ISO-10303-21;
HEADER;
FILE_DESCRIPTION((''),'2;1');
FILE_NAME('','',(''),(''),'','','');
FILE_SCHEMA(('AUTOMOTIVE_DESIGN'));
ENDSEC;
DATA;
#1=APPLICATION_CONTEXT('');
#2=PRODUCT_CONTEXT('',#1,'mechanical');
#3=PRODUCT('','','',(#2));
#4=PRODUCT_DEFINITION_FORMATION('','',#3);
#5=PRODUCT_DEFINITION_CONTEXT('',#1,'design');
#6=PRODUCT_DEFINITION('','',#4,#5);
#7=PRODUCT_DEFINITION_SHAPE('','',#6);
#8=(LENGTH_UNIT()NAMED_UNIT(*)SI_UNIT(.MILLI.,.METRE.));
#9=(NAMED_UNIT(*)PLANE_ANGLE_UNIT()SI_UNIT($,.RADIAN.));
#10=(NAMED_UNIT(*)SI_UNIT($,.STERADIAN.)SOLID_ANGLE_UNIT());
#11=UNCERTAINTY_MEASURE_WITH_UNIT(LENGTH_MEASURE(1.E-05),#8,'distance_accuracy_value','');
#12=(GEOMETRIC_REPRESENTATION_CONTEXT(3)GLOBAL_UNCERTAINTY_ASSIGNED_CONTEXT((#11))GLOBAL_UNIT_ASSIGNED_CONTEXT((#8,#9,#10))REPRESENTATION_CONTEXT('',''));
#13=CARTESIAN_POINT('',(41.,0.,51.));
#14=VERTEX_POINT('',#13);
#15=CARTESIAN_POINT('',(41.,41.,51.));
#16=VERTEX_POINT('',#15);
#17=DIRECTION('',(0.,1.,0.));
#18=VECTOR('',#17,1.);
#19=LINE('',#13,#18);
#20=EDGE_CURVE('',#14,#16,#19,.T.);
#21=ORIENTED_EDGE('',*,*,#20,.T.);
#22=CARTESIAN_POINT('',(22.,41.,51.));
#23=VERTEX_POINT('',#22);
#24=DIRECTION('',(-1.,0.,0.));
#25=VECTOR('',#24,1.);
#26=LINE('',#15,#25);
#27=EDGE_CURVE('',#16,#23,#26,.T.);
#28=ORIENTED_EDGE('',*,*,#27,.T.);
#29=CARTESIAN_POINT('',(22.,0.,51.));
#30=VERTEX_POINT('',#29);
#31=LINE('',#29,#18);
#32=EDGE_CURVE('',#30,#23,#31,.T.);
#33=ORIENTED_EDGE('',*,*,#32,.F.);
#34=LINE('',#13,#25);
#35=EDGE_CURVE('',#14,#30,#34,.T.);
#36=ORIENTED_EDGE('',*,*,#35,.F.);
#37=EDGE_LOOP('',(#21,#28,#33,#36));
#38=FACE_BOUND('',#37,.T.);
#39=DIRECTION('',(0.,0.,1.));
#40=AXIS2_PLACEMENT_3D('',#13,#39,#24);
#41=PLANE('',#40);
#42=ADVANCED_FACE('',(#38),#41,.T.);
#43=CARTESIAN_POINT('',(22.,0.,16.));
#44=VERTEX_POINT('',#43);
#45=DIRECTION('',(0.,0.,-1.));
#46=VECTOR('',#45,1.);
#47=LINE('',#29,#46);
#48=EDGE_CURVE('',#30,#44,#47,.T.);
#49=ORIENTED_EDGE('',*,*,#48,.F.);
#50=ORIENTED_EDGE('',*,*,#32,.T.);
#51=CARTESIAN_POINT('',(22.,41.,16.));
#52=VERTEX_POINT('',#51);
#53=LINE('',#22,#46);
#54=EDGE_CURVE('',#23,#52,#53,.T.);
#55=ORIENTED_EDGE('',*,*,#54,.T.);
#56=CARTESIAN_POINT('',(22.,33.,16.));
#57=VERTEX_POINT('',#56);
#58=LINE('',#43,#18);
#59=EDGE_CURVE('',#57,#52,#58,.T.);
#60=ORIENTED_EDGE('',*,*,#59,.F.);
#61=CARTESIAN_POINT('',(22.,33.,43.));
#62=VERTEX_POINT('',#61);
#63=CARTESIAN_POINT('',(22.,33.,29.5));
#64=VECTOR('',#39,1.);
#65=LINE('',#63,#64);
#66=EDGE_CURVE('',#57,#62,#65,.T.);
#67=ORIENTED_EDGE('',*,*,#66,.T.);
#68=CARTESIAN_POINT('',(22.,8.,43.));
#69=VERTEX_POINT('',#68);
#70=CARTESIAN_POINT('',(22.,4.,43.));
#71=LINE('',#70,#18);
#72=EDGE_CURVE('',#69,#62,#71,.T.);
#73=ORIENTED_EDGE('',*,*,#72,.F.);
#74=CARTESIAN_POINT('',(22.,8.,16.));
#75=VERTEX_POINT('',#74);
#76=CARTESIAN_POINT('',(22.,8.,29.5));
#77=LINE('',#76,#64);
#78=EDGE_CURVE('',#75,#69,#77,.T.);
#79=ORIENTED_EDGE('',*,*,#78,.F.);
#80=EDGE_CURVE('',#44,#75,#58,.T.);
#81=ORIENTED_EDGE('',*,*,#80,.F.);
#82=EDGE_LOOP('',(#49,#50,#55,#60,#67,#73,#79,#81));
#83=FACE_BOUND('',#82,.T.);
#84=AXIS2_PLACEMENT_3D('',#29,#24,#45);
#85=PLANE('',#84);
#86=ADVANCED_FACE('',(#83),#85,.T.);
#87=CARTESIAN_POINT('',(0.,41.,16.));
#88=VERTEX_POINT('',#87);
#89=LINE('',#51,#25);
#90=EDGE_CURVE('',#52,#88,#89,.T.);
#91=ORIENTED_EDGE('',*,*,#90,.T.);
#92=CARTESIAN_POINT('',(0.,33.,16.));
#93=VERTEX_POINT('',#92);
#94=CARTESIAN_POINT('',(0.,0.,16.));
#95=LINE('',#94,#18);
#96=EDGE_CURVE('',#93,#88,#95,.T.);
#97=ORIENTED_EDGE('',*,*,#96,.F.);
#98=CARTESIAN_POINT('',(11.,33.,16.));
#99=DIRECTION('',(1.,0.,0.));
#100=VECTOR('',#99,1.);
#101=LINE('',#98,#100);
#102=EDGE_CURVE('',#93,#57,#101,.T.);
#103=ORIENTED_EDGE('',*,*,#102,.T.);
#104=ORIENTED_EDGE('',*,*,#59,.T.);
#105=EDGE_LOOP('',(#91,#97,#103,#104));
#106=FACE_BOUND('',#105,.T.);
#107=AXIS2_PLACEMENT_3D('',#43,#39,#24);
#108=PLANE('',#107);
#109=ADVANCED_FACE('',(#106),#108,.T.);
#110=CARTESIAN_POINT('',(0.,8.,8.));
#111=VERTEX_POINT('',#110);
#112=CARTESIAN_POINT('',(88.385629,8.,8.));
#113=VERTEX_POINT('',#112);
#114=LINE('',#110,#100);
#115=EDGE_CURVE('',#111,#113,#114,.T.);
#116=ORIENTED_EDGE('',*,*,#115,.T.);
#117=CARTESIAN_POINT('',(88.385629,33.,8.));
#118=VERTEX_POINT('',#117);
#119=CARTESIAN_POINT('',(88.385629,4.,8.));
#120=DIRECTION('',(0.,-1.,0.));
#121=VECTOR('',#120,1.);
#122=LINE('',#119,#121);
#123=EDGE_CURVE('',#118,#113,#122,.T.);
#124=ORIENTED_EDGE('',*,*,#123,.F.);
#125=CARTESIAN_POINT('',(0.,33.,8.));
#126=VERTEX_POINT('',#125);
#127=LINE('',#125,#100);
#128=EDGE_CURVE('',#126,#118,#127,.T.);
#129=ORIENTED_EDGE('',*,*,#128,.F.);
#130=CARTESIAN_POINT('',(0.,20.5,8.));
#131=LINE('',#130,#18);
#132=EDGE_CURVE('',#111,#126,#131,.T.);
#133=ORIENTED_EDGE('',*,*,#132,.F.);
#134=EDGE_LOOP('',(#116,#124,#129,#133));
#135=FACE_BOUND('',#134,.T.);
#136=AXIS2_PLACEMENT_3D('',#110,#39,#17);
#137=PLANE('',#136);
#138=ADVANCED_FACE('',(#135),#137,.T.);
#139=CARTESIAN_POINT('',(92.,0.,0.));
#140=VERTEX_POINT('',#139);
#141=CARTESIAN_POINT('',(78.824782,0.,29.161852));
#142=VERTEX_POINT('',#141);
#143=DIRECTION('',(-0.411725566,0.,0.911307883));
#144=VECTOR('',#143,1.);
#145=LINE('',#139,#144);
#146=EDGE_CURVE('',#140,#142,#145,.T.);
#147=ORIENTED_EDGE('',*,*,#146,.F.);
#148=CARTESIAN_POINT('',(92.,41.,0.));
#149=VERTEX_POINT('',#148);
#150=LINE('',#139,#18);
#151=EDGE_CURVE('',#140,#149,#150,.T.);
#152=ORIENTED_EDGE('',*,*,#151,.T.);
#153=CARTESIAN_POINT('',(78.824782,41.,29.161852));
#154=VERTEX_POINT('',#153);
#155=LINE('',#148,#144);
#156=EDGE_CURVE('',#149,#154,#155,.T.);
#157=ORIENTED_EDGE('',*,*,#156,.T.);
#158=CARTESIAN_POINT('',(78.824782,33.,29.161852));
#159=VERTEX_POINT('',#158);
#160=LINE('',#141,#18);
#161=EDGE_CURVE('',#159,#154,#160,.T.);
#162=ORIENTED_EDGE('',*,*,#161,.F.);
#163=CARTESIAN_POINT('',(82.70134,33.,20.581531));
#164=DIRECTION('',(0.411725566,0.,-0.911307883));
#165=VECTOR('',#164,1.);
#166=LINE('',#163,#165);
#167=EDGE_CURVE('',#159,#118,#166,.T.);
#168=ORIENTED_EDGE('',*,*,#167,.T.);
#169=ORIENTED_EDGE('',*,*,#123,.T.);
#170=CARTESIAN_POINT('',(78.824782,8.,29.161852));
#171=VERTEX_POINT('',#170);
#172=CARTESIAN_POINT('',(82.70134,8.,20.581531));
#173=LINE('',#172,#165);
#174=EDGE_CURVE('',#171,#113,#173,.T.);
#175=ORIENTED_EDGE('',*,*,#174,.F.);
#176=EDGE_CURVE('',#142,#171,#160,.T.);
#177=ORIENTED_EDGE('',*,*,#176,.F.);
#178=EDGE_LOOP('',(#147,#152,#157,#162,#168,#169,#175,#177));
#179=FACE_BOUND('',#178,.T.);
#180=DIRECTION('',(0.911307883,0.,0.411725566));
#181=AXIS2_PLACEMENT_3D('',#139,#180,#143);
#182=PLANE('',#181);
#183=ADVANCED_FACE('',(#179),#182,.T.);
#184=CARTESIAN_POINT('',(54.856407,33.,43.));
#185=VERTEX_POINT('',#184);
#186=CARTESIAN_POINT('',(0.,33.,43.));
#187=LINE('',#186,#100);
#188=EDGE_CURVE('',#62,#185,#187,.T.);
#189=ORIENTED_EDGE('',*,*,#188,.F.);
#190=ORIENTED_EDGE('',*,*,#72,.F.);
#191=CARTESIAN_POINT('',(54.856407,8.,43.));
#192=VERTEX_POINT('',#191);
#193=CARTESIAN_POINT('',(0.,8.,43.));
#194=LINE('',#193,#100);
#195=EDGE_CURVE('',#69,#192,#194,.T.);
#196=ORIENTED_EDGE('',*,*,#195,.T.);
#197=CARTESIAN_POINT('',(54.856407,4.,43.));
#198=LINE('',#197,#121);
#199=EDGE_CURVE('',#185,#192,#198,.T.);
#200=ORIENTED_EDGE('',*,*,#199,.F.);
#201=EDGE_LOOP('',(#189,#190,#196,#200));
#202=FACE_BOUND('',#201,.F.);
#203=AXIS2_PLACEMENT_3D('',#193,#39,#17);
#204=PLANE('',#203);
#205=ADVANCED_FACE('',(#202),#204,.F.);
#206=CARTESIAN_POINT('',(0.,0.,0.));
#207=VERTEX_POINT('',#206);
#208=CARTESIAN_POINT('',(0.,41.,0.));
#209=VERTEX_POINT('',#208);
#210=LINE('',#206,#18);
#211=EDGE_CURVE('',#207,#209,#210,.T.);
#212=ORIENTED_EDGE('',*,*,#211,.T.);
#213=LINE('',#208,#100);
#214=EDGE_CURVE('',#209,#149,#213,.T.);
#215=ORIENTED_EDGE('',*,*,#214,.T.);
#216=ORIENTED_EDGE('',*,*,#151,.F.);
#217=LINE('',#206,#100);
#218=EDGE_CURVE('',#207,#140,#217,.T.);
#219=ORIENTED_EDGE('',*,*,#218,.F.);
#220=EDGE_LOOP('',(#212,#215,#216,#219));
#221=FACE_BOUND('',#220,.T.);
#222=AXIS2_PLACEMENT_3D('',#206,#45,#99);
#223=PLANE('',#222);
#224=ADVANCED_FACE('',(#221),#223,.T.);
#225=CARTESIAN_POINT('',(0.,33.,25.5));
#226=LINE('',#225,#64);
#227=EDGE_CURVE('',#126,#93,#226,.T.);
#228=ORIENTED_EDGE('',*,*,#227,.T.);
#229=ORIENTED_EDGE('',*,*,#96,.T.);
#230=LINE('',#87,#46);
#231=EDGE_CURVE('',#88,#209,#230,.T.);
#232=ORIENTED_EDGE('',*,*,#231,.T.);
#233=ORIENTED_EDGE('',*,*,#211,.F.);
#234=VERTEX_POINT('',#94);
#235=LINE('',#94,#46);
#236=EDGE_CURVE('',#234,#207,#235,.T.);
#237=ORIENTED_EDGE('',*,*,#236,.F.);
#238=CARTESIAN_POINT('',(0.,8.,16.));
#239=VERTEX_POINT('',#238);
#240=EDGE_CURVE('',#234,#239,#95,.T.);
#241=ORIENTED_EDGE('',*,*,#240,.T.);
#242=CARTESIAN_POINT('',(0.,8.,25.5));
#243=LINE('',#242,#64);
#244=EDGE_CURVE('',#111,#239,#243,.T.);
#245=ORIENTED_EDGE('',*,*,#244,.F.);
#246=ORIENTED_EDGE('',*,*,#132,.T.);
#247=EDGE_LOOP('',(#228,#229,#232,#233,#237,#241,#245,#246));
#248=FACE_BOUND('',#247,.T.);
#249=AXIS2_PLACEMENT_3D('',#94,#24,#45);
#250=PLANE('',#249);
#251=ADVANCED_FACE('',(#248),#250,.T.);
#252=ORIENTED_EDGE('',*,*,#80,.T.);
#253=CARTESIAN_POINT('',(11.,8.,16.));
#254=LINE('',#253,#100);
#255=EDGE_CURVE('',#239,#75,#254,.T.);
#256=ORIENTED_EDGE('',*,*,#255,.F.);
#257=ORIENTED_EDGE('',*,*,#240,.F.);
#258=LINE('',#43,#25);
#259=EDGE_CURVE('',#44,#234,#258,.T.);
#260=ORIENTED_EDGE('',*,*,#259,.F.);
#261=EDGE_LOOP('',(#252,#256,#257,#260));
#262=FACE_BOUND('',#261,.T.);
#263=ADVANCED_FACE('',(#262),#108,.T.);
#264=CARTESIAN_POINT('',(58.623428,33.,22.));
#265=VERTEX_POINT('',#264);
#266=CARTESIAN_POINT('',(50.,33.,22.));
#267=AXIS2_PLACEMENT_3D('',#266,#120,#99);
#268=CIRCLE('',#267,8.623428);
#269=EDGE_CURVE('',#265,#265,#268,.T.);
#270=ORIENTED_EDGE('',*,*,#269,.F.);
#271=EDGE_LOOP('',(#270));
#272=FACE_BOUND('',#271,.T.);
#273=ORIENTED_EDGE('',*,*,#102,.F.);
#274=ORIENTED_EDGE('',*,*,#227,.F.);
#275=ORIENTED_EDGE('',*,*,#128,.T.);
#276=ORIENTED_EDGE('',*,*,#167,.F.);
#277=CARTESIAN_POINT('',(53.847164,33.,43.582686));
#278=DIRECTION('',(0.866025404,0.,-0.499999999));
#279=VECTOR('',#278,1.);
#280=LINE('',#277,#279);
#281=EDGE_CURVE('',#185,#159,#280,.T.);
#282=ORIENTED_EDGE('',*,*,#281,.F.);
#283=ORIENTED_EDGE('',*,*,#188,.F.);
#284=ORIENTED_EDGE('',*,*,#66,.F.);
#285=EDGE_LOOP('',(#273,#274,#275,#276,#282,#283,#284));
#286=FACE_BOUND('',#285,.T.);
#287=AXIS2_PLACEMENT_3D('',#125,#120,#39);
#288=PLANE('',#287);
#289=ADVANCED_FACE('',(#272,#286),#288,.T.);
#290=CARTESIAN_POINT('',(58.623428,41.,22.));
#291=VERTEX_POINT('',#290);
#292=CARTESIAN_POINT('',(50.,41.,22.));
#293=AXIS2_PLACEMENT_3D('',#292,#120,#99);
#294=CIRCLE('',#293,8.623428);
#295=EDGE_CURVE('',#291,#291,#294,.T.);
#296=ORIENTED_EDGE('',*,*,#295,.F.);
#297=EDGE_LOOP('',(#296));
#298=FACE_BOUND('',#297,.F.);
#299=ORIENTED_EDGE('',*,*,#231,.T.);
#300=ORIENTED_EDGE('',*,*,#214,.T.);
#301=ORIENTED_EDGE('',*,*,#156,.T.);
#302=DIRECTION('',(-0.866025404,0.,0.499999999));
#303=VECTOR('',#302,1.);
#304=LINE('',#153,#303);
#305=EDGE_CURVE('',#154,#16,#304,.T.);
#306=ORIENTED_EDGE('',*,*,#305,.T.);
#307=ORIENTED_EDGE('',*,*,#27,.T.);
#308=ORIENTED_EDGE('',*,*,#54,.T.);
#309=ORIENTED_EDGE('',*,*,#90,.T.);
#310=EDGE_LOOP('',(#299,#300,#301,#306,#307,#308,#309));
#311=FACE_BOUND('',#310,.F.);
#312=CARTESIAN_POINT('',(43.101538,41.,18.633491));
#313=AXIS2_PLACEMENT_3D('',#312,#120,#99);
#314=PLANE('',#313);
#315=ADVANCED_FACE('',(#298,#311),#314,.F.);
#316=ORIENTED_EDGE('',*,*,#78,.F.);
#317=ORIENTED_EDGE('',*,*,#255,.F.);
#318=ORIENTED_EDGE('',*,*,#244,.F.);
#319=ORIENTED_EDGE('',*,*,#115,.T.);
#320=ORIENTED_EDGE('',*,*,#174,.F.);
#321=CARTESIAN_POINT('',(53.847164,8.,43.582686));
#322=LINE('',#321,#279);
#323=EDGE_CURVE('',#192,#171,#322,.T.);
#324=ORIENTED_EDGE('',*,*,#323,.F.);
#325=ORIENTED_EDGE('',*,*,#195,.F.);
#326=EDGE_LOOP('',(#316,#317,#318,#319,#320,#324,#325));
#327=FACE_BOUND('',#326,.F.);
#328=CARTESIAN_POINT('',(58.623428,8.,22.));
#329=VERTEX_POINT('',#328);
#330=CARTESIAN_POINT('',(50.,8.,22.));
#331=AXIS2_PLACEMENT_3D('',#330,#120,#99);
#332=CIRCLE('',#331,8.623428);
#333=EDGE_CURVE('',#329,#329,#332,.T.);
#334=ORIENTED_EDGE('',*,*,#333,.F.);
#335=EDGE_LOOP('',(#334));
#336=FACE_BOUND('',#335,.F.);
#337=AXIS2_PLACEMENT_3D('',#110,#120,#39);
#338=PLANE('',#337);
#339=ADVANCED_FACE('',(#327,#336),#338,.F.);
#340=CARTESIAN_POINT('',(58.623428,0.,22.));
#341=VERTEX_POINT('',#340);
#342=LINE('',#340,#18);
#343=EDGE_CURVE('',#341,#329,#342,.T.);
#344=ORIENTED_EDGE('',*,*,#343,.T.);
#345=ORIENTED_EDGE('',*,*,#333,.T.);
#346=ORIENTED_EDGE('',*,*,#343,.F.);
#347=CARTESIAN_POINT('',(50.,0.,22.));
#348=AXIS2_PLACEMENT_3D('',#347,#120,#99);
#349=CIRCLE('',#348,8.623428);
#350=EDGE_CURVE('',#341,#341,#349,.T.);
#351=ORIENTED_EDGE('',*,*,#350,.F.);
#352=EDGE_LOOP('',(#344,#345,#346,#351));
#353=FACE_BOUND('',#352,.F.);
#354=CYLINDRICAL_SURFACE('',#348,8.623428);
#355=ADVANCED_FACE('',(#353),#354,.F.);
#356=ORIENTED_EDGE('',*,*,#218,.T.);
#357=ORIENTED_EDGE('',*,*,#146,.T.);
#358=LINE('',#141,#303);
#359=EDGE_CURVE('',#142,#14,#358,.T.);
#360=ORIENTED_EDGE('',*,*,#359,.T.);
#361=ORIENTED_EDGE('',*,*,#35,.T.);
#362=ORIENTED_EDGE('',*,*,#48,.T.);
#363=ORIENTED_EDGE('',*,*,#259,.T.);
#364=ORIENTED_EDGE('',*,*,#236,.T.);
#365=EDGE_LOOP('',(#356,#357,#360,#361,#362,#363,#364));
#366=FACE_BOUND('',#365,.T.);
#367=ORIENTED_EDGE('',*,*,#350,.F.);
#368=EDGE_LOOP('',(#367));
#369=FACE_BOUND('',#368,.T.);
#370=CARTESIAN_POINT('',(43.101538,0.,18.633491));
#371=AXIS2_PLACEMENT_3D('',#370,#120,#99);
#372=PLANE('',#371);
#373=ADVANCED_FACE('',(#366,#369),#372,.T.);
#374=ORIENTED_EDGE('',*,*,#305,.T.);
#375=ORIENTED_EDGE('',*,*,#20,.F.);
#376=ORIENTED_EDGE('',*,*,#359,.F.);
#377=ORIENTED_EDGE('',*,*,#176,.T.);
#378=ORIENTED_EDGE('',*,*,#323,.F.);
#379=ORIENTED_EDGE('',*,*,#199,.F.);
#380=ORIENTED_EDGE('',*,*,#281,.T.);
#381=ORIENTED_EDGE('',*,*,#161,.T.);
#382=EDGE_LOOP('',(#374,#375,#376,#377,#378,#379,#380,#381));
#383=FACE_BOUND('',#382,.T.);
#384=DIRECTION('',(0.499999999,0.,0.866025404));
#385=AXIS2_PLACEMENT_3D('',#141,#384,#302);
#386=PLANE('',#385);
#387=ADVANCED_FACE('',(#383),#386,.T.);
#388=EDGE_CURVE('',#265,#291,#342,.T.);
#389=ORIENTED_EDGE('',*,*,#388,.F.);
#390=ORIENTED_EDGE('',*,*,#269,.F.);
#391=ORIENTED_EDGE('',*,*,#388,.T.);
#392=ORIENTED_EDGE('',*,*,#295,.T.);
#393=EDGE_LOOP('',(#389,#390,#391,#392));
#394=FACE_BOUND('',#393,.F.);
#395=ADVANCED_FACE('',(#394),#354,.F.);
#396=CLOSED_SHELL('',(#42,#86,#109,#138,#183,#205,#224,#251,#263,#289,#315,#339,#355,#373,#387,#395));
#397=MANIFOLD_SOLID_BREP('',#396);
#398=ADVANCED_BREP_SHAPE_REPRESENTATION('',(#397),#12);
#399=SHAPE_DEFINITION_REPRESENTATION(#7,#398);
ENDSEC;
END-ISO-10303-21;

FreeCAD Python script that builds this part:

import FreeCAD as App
import Part
import Sketcher

V = App.Vector
Q = App.Units.Quantity


def add_polygon(sketch, points):
    """Adds a closed chain of lines whose ends are joined by coincident constraints."""
    first, n = sketch.GeometryCount, len(points)
    for a, b in zip(points, points[1:] + points[:1]):
        sketch.addGeometry(Part.LineSegment(App.Vector(*a, 0), App.Vector(*b, 0)), False)
    for i in range(n):
        sketch.addConstraint(Sketcher.Constraint("Coincident", first + i, 2, first + (i + 1) % n, 1))

doc = App.newDocument("Part")
body = doc.addObject("PartDesign::Body", "Body")

# Sketch on XZ plane
sketch1 = body.newObject("Sketcher::SketchObject", "Sketch")
sketch1.AttachmentSupport = (doc.getObject("XZ_Plane"), [""])
sketch1.MapMode = "FlatFace"
add_polygon(sketch1, [(0, 16), (0, 0), (92, 0), (79, 29), (41, 51), (22, 51), (22, 16)])  # lines 0-6
sketch1.addConstraint([
    Sketcher.Constraint("Vertical", 0),
    Sketcher.Constraint("Horizontal", 1),
    Sketcher.Constraint("Horizontal", 4),
    Sketcher.Constraint("Vertical", 5),
    Sketcher.Constraint("Horizontal", 6),
    Sketcher.Constraint("Coincident", 0, 2, -1, 1),
    Sketcher.Constraint("DistanceX", 1, 1, 1, 2, Q("92 mm")),
    Sketcher.Constraint("DistanceX", 4, 2, 4, 1, Q("19 mm")),
    Sketcher.Constraint("DistanceX", 6, 2, 6, 1, Q("22 mm")),
    Sketcher.Constraint("DistanceY", 0, 2, 0, 1, Q("16 mm")),
    Sketcher.Constraint("DistanceY", 5, 2, 5, 1, Q("35 mm")),
    Sketcher.Constraint("Angle", 3, Q("150 deg")),
    Sketcher.Constraint("Distance", 2, Q("32 mm")),
])
pad1 = body.newObject("PartDesign::Pad", "Pad")
pad1.Profile = sketch1
pad1.Length = 41
pad1.Reversed = True

# Sketch on YZ plane
sketch2 = body.newObject("Sketcher::SketchObject", "Sketch001")
sketch2.AttachmentSupport = (doc.getObject("YZ_Plane"), [""])
sketch2.MapMode = "FlatFace"
add_polygon(sketch2, [(8, 43), (8, 8), (33, 8), (33, 43)])  # lines 0-3
sketch2.addConstraint([
    Sketcher.Constraint("Vertical", 0),
    Sketcher.Constraint("Horizontal", 1),
    Sketcher.Constraint("Vertical", 2),
    Sketcher.Constraint("Horizontal", 3),
    Sketcher.Constraint("DistanceX", 1, 1, 1, 2, Q("25 mm")),
    Sketcher.Constraint("DistanceY", 0, 2, 0, 1, Q("35 mm")),
    Sketcher.Constraint("DistanceX", -1, 1, 0, 2, Q("8 mm")),
    Sketcher.Constraint("DistanceY", -1, 1, 0, 2, Q("8 mm")),
])
pocket1 = body.newObject("PartDesign::Pocket", "Pocket")
pocket1.Profile = sketch2
pocket1.Type = "ThroughAll"
pocket1.Reversed = True

# Sketch on XZ plane
sketch3 = body.newObject("Sketcher::SketchObject", "Sketch002")
sketch3.AttachmentSupport = (doc.getObject("XZ_Plane"), [""])
sketch3.MapMode = "FlatFace"
sketch3.addGeometry(Part.Circle(V(50, 22, 0), V(0, 0, 1), 9), False)
sketch3.addConstraint([
    Sketcher.Constraint("DistanceX", -1, 1, 0, 3, Q("50 mm")),
    Sketcher.Constraint("DistanceY", -1, 1, 0, 3, Q("22 mm")),
    Sketcher.Constraint("Diameter", 0, Q("17.246856 mm")),
])
pocket2 = body.newObject("PartDesign::Pocket", "Pocket001")
pocket2.Profile = sketch3
pocket2.Type = "ThroughAll"

doc.recompute()
